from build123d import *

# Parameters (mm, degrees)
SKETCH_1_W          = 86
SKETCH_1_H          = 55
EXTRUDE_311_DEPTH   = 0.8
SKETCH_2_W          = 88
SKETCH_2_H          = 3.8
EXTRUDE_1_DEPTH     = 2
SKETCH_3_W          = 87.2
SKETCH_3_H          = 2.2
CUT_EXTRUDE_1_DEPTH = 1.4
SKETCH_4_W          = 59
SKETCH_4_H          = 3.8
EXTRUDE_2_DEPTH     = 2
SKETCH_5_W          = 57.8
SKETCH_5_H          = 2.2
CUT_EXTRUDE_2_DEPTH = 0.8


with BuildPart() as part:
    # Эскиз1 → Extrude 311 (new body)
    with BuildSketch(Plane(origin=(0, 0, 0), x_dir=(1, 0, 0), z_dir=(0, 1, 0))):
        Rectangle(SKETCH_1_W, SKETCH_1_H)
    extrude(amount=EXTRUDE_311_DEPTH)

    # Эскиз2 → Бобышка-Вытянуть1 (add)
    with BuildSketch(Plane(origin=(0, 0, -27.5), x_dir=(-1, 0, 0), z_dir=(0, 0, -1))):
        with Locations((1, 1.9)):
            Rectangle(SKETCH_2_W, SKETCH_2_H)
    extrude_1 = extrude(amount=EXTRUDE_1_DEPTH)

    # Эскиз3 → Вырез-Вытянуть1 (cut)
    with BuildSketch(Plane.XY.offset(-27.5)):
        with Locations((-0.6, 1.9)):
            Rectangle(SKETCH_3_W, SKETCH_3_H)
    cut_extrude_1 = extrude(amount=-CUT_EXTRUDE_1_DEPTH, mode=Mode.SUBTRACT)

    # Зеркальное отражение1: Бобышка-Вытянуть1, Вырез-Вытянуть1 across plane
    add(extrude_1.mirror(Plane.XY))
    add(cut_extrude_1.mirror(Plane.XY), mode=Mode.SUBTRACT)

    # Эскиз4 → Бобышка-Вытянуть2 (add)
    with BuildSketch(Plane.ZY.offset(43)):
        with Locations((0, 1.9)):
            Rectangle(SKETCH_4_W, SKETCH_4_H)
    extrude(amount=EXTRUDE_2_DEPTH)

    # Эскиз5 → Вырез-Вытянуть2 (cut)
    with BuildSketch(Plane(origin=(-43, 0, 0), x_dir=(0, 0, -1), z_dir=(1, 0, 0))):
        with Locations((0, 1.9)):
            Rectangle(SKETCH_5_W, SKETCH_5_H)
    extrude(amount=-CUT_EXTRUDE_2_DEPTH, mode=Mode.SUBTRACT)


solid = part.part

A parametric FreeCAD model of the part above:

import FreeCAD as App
import Part
import Sketcher


def add_polygon(sketch, points):
    """Adds a closed chain of lines whose ends are joined by coincident constraints."""
    first, n = sketch.GeometryCount, len(points)
    for a, b in zip(points, points[1:] + points[:1]):
        sketch.addGeometry(Part.LineSegment(App.Vector(*a, 0), App.Vector(*b, 0)), False)
    for i in range(n):
        sketch.addConstraint(Sketcher.Constraint("Coincident", first + i, 2, first + (i + 1) % n, 1))

doc = App.newDocument("Part")
params = doc.addObject("Spreadsheet::Sheet", "Params")
for row, (alias, value) in enumerate([
    ("sketch1_width", "86 mm"),
    ("sketch1_height", "55 mm"),
    ("pad1_length", "0.8 mm"),
    ("sketch2_width", "88 mm"),
    ("sketch2_height", "3.8 mm"),
    ("pad2_length", "2 mm"),
    ("sketch3_width", "87.2 mm"),
    ("sketch3_height", "2.2 mm"),
    ("pocket1_length", "1.4 mm"),
    ("sketch4_height", "59 mm"),
    ("sketch4_width", "3.8 mm"),
    ("pad3_length", "2 mm"),
    ("sketch5_width", "2.2 mm"),
    ("sketch5_height", "57.8 mm"),
    ("pocket2_length", "0.8 mm"),
], start=1):
    params.set(f"A{row}", alias)
    params.set(f"B{row}", "=" + value)
    params.setAlias(f"B{row}", alias)

body = doc.addObject("PartDesign::Body", "Body")

# Sketch on XZ plane
sketch1 = doc.addObject("Sketcher::SketchObject", "Sketch")
body.addObject(sketch1)
sketch1.AttachmentSupport = (doc.XZ_Plane, [""])
sketch1.MapMode = "FlatFace"
add_polygon(sketch1, [(-43, -28), (-43, 28), (43, 28), (43, -28)])  # lines 0-3
sketch1.addConstraint([
    Sketcher.Constraint("Vertical", 0),
    Sketcher.Constraint("Horizontal", 1),
    Sketcher.Constraint("Vertical", 2),
    Sketcher.Constraint("Horizontal", 3),
    Sketcher.Constraint("Symmetric", 0, 2, 2, 2, -1, 1),
    Sketcher.Constraint("DistanceX", 1, 1, 1, 2, 86.0),
    Sketcher.Constraint("DistanceY", 0, 1, 0, 2, 55.0),
])
sketch1.setExpression("Constraints[9]", "Params.sketch1_width")
sketch1.setExpression("Constraints[10]", "Params.sketch1_height")
pad1 = doc.addObject("PartDesign::Pad", "Pad")
body.addObject(pad1)
pad1.Profile = sketch1
pad1.setExpression("Length", "Params.pad1_length")
pad1.Reversed = True

# Sketch on XY plane
sketch2 = doc.addObject("Sketcher::SketchObject", "Sketch001")
body.addObject(sketch2)
sketch2.AttachmentSupport = (doc.XY_Plane, [""])
sketch2.MapMode = "FlatFace"
sketch2.AttachmentOffset = App.Placement(App.Vector(0, 0, -27.5), App.Rotation())
add_polygon(sketch2, [(43, 3.8), (43, 0), (-45, 0), (-45, 3.8)])  # lines 0-3
sketch2.addConstraint([
    Sketcher.Constraint("Vertical", 0),
    Sketcher.Constraint("Horizontal", 1),
    Sketcher.Constraint("Vertical", 2),
    Sketcher.Constraint("Horizontal", 3),
    Sketcher.Constraint("PointOnObject", 0, 2, -1),
    Sketcher.Constraint("DistanceX", 1, 2, 1, 1, 88.0),
    Sketcher.Constraint("DistanceY", 0, 2, 0, 1, 3.8),
    Sketcher.Constraint("DistanceX", -1, 1, 0, 2, 43.0),
])
sketch2.setExpression("Constraints[9]", "Params.sketch2_width")
sketch2.setExpression("Constraints[10]", "Params.sketch2_height")
pad2 = doc.addObject("PartDesign::Pad", "Pad001")
body.addObject(pad2)
pad2.Profile = sketch2
pad2.setExpression("Length", "Params.pad2_length")
pad2.Reversed = True

# Sketch on XY plane
sketch3 = doc.addObject("Sketcher::SketchObject", "Sketch002")
body.addObject(sketch3)
sketch3.AttachmentSupport = (doc.XY_Plane, [""])
sketch3.MapMode = "FlatFace"
sketch3.AttachmentOffset = App.Placement(App.Vector(0, 0, -27.5), App.Rotation())
add_polygon(sketch3, [(-44.2, 3), (-44.2, 0.8), (43, 0.8), (43, 3)])  # lines 0-3
sketch3.addConstraint([
    Sketcher.Constraint("Vertical", 0),
    Sketcher.Constraint("Horizontal", 1),
    Sketcher.Constraint("Vertical", 2),
    Sketcher.Constraint("Horizontal", 3),
    Sketcher.Constraint("DistanceX", 1, 1, 1, 2, 87.2),
    Sketcher.Constraint("DistanceY", 0, 2, 0, 1, 2.2),
    Sketcher.Constraint("DistanceX", -1, 1, 1, 2, 43.0),
    Sketcher.Constraint("DistanceY", -1, 1, 2, 2, 3.0),
])
sketch3.setExpression("Constraints[8]", "Params.sketch3_width")
sketch3.setExpression("Constraints[9]", "Params.sketch3_height")
pocket1 = doc.addObject("PartDesign::Pocket", "Pocket")
body.addObject(pocket1)
pocket1.Profile = sketch3
pocket1.setExpression("Length", "Params.pocket1_length")
doc.recompute()

mirrored = doc.addObject("PartDesign::Mirrored", "Mirrored")
body.addObject(mirrored)
mirrored.Originals = [pad2, pocket1]
mirrored.MirrorPlane = (doc.XY_Plane, [""])
body.Tip = mirrored

# Sketch on YZ plane
sketch4 = doc.addObject("Sketcher::SketchObject", "Sketch003")
body.addObject(sketch4)
sketch4.AttachmentSupport = (doc.YZ_Plane, [""])
sketch4.MapMode = "FlatFace"
sketch4.AttachmentOffset = App.Placement(App.Vector(0, 0, -43), App.Rotation())
add_polygon(sketch4, [(3.8, -29.5), (0, -29.5), (0, 29.5), (3.8, 29.5)])  # lines 0-3
sketch4.addConstraint([
    Sketcher.Constraint("Horizontal", 0),
    Sketcher.Constraint("Vertical", 1),
    Sketcher.Constraint("Horizontal", 2),
    Sketcher.Constraint("Vertical", 3),
    Sketcher.Constraint("Symmetric", 0, 2, 1, 2, -1, 1),
    Sketcher.Constraint("DistanceY", 1, 1, 1, 2, 59.0),
    Sketcher.Constraint("DistanceX", 0, 2, 0, 1, 3.8),
])
sketch4.setExpression("Constraints[9]", "Params.sketch4_height")
sketch4.setExpression("Constraints[10]", "Params.sketch4_width")
pad3 = doc.addObject("PartDesign::Pad", "Pad002")
body.addObject(pad3)
pad3.Profile = sketch4
pad3.setExpression("Length", "Params.pad3_length")
pad3.Reversed = True

# Sketch on YZ plane
sketch5 = doc.addObject("Sketcher::SketchObject", "Sketch004")
body.addObject(sketch5)
sketch5.AttachmentSupport = (doc.YZ_Plane, [""])
sketch5.MapMode = "FlatFace"
sketch5.AttachmentOffset = App.Placement(App.Vector(0, 0, -43), App.Rotation())
add_polygon(sketch5, [(3, 28.9), (0.8, 28.9), (0.8, -28.9), (3, -28.9)])  # lines 0-3
sketch5.addConstraint([
    Sketcher.Constraint("Horizontal", 0),
    Sketcher.Constraint("Vertical", 1),
    Sketcher.Constraint("Horizontal", 2),
    Sketcher.Constraint("Vertical", 3),
    Sketcher.Constraint("DistanceX", 0, 2, 0, 1, 2.2),
    Sketcher.Constraint("DistanceY", 1, 2, 1, 1, 57.8),
    Sketcher.Constraint("DistanceX", -1, 1, 2, 2, 3.0),
    Sketcher.Constraint("DistanceY", -1, 1, 0, 2, 28.9),
])
sketch5.setExpression("Constraints[8]", "Params.sketch5_width")
sketch5.setExpression("Constraints[9]", "Params.sketch5_height")
pocket2 = doc.addObject("PartDesign::Pocket", "Pocket001")
body.addObject(pocket2)
pocket2.Profile = sketch5
pocket2.setExpression("Length", "Params.pocket2_length")

doc.recompute()
